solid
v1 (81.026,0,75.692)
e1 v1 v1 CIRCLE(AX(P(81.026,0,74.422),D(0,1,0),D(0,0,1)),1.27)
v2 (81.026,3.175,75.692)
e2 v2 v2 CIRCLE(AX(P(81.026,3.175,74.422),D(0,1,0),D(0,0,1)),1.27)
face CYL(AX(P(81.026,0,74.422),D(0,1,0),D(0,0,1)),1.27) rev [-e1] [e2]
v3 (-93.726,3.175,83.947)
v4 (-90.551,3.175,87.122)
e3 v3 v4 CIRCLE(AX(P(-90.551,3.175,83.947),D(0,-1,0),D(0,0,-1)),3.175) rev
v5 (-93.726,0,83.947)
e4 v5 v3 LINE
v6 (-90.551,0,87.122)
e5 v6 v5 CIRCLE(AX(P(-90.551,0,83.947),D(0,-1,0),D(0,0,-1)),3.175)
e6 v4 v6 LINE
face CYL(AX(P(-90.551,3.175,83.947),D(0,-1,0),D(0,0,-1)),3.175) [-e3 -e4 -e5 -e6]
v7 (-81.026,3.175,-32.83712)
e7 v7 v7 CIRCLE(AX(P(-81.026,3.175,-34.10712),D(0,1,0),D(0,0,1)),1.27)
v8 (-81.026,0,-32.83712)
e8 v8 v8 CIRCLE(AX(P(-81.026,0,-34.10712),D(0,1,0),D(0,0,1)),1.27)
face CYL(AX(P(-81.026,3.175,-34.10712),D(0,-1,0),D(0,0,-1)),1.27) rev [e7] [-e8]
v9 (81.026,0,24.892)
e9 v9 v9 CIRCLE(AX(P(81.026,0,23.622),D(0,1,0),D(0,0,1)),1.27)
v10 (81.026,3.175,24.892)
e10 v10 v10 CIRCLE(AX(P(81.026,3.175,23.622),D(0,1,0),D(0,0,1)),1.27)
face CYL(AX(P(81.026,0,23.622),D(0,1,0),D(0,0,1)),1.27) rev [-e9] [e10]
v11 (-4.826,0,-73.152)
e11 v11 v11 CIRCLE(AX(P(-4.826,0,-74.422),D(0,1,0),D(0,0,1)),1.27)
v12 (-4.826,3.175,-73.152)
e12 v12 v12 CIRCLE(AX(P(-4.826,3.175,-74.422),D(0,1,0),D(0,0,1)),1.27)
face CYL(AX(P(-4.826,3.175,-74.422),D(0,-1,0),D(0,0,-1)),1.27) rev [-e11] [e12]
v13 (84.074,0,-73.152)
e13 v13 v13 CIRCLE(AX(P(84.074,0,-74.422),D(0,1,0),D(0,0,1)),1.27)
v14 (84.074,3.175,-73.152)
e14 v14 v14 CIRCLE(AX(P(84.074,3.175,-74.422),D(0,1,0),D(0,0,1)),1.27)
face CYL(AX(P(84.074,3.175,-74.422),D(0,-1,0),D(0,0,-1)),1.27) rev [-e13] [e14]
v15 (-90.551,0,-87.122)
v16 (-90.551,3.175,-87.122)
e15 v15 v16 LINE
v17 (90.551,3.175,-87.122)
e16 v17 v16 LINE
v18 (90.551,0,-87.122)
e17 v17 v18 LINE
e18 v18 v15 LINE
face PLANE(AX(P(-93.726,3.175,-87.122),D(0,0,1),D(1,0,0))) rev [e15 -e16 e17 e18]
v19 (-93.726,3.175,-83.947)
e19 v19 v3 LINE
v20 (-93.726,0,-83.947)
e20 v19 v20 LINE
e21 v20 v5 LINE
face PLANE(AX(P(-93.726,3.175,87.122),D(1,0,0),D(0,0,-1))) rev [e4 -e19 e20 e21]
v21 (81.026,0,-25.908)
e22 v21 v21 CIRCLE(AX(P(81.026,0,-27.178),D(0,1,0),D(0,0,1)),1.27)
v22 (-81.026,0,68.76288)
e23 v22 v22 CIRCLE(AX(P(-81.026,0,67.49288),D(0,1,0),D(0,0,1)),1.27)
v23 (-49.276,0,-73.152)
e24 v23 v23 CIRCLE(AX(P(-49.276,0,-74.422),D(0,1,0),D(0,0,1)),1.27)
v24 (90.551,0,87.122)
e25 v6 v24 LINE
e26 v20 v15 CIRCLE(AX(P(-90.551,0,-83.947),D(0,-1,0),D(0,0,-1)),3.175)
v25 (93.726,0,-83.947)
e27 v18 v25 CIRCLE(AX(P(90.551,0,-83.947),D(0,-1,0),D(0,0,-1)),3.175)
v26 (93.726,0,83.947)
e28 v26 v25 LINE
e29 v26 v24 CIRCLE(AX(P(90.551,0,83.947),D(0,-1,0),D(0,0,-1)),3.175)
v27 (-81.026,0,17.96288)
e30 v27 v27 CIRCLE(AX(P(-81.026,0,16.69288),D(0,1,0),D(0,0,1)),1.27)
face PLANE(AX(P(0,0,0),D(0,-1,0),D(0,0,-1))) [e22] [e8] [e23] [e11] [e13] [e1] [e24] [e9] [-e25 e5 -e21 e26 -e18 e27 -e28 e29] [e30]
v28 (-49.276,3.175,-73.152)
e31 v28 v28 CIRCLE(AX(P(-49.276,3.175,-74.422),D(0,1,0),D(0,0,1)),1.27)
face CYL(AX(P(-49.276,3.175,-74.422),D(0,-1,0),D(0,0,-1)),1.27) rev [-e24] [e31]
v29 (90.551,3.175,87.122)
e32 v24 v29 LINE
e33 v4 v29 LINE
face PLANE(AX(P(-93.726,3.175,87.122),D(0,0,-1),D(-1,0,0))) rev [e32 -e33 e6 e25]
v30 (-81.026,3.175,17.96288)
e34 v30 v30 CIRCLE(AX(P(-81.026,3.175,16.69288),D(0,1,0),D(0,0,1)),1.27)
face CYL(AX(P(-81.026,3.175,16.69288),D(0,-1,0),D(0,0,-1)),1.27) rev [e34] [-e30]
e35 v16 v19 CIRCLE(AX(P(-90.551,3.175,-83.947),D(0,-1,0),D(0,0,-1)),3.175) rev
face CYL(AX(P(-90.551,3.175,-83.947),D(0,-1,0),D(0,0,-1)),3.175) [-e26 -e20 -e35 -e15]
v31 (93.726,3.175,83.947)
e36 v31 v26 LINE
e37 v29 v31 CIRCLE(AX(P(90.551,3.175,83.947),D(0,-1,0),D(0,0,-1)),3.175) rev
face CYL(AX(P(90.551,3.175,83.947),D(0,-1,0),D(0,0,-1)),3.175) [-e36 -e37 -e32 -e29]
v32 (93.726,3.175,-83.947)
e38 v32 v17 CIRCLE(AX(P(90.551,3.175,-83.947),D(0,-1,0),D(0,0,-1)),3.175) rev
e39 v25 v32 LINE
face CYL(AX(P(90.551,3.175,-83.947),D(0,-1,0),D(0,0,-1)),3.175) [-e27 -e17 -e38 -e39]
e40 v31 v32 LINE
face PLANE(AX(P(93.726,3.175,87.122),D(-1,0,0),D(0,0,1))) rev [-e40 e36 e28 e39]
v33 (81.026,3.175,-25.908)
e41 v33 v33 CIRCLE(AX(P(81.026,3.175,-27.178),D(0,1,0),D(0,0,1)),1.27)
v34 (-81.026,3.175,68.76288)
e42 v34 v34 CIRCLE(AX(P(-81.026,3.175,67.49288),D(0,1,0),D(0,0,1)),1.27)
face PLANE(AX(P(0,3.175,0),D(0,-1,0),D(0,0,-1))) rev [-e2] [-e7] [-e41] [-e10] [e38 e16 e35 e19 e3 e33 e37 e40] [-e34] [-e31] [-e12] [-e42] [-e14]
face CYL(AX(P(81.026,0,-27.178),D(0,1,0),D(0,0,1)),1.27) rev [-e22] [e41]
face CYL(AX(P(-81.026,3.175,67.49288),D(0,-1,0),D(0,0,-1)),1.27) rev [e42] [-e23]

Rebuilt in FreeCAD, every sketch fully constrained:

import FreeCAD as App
import Part
import Sketcher

V = App.Vector
Q = App.Units.Quantity


def edges_at(feature, points):
    """Names of the edges that pass closest to the given points."""
    edges = feature.Shape.Edges
    near = lambda p: min(range(len(edges)), key=lambda i: edges[i].distToShape(Part.Vertex(*p))[0])
    return sorted({f"Edge{near(p) + 1}" for p in points})

doc = App.newDocument("Part")
body = doc.addObject("PartDesign::Body", "Body")

# Sketch on XZ plane
sketch1 = doc.addObject("Sketcher::SketchObject", "Sketch")
body.addObject(sketch1)
sketch1.AttachmentSupport = (doc.XZ_Plane, [""])
sketch1.MapMode = "FlatFace"
sketch1.addGeometry(Part.LineSegment(V(-93.726, -87.122, 0), V(-93.726, 87.122, 0)), False)
sketch1.addGeometry(Part.LineSegment(V(-93.726, 87.122, 0), V(93.726, 87.122, 0)), False)
sketch1.addGeometry(Part.LineSegment(V(93.726, 87.122, 0), V(93.726, -87.122, 0)), False)
sketch1.addGeometry(Part.LineSegment(V(93.726, -87.122, 0), V(-93.726, -87.122, 0)), False)
sketch1.addGeometry(Part.Circle(V(-81.026, 67.49288, 0), V(0, 0, 1), 1.27), False)
sketch1.addGeometry(Part.Circle(V(-81.026, 16.69288, 0), V(0, 0, 1), 1.27), False)
sketch1.addGeometry(Part.Circle(V(-81.026, -34.10712, 0), V(0, 0, 1), 1.27), False)
sketch1.addGeometry(Part.Circle(V(-49.276, -74.422, 0), V(0, 0, 1), 1.27), False)
sketch1.addGeometry(Part.Circle(V(-4.826, -74.422, 0), V(0, 0, 1), 1.27), False)
sketch1.addGeometry(Part.Circle(V(84.074, -74.422, 0), V(0, 0, 1), 1.27), False)
sketch1.addConstraint(Sketcher.Constraint("Coincident", 0, 2, 1, 1))
sketch1.addConstraint(Sketcher.Constraint("Coincident", 1, 2, 2, 1))
sketch1.addConstraint(Sketcher.Constraint("Coincident", 2, 2, 3, 1))
sketch1.addConstraint(Sketcher.Constraint("Coincident", 3, 2, 0, 1))
sketch1.addConstraint(Sketcher.Constraint("Vertical", 0))
sketch1.addConstraint(Sketcher.Constraint("Horizontal", 1))
sketch1.addConstraint(Sketcher.Constraint("Vertical", 2))
sketch1.addConstraint(Sketcher.Constraint("Horizontal", 3))
sketch1.addConstraint(Sketcher.Constraint("Equal", 4, 5))
sketch1.addConstraint(Sketcher.Constraint("Equal", 5, 6))
sketch1.addConstraint(Sketcher.Constraint("Equal", 6, 7))
sketch1.addConstraint(Sketcher.Constraint("Equal", 7, 8))
sketch1.addConstraint(Sketcher.Constraint("Equal", 8, 9))
sketch1.addConstraint(Sketcher.Constraint("Symmetric", 0, 2, 2, 2, -1, 1))
sketch1.addConstraint(Sketcher.Constraint("Horizontal", 7, 3, 8, 3))
sketch1.addConstraint(Sketcher.Constraint("Horizontal", 8, 3, 9, 3))
sketch1.addConstraint(Sketcher.Constraint("Vertical", 4, 3, 5, 3))
sketch1.addConstraint(Sketcher.Constraint("Vertical", 5, 3, 6, 3))
sketch1.addConstraint(Sketcher.Constraint("Diameter", 4, Q("0.1 in")))
sketch1.addConstraint(Sketcher.Constraint("DistanceY", 5, 3, 4, 3, Q("2 in")))
sketch1.addConstraint(Sketcher.Constraint("DistanceY", 6, 3, 5, 3, Q("2 in")))
sketch1.addConstraint(Sketcher.Constraint("DistanceX", 6, 3, 8, 3, Q("3 in")))
sketch1.addConstraint(Sketcher.Constraint("DistanceX", 1, 1, 1, 2, Q("7.38 in")))
sketch1.addConstraint(Sketcher.Constraint("DistanceY", 0, 1, 0, 2, Q("6.86 in")))
sketch1.addConstraint(Sketcher.Constraint("DistanceX", 8, 3, 9, 3, Q("3.5 in")))
sketch1.addConstraint(Sketcher.Constraint("DistanceX", 0, 2, 4, 3, Q("0.5 in")))
sketch1.addConstraint(Sketcher.Constraint("DistanceY", 2, 2, 9, 3, Q("0.5 in")))
sketch1.addConstraint(Sketcher.Constraint("DistanceX", 7, 3, -1, 1, Q("1.94 in")))
sketch1.addConstraint(Sketcher.Constraint("DistanceY", -1, 1, 4, 3, Q("2.6572 in")))
pad1 = doc.addObject("PartDesign::Pad", "Pad")
body.addObject(pad1)
pad1.Profile = sketch1
pad1.Length = Q("0.125 in")
pad1.Reversed = True

# Sketch on XZ plane
sketch2 = doc.addObject("Sketcher::SketchObject", "Sketch001")
body.addObject(sketch2)
sketch2.AttachmentSupport = (doc.XZ_Plane, [""])
sketch2.MapMode = "FlatFace"
sketch2.AttachmentOffset = App.Placement(V(0, 0, -0.125 * 25.4), App.Rotation())
sketch2.addGeometry(Part.Circle(V(81.026, 74.422, 0), V(0, 0, 1), 1.27), False)
sketch2.addGeometry(Part.Circle(V(81.026, 23.622, 0), V(0, 0, 1), 1.27), False)
sketch2.addGeometry(Part.Circle(V(81.026, -27.178, 0), V(0, 0, 1), 1.27), False)
sketch2.addConstraint(Sketcher.Constraint("Equal", 0, 1))
sketch2.addConstraint(Sketcher.Constraint("Equal", 1, 2))
sketch2.addConstraint(Sketcher.Constraint("Vertical", 0, 3, 1, 3))
sketch2.addConstraint(Sketcher.Constraint("Vertical", 1, 3, 2, 3))
sketch2.addConstraint(Sketcher.Constraint("Diameter", 0, Q("0.1 in")))
sketch2.addConstraint(Sketcher.Constraint("DistanceY", 1, 3, 0, 3, Q("2 in")))
sketch2.addConstraint(Sketcher.Constraint("DistanceY", 2, 3, 1, 3, Q("2 in")))
sketch2.addConstraint(Sketcher.Constraint("DistanceX", -1, 1, 0, 3, Q("3.19 in")))
sketch2.addConstraint(Sketcher.Constraint("DistanceY", -1, 1, 0, 3, Q("2.93 in")))
pocket1 = doc.addObject("PartDesign::Pocket", "Pocket")
body.addObject(pocket1)
pocket1.Profile = sketch2
pocket1.Type = "ThroughAll"
pocket1.Reversed = True
doc.recompute()

fillet = doc.addObject("PartDesign::Fillet", "Fillet")
body.addObject(fillet)
fillet.Base = (pocket1, edges_at(pocket1, [
    (93.726, 1.587, 87.122),
    (-93.726, 1.587, 87.122),
    (-93.726, 1.587, -87.122),
    (93.726, 1.587, -87.122),
]))
fillet.Radius = Q("0.125 in")

doc.recompute()
